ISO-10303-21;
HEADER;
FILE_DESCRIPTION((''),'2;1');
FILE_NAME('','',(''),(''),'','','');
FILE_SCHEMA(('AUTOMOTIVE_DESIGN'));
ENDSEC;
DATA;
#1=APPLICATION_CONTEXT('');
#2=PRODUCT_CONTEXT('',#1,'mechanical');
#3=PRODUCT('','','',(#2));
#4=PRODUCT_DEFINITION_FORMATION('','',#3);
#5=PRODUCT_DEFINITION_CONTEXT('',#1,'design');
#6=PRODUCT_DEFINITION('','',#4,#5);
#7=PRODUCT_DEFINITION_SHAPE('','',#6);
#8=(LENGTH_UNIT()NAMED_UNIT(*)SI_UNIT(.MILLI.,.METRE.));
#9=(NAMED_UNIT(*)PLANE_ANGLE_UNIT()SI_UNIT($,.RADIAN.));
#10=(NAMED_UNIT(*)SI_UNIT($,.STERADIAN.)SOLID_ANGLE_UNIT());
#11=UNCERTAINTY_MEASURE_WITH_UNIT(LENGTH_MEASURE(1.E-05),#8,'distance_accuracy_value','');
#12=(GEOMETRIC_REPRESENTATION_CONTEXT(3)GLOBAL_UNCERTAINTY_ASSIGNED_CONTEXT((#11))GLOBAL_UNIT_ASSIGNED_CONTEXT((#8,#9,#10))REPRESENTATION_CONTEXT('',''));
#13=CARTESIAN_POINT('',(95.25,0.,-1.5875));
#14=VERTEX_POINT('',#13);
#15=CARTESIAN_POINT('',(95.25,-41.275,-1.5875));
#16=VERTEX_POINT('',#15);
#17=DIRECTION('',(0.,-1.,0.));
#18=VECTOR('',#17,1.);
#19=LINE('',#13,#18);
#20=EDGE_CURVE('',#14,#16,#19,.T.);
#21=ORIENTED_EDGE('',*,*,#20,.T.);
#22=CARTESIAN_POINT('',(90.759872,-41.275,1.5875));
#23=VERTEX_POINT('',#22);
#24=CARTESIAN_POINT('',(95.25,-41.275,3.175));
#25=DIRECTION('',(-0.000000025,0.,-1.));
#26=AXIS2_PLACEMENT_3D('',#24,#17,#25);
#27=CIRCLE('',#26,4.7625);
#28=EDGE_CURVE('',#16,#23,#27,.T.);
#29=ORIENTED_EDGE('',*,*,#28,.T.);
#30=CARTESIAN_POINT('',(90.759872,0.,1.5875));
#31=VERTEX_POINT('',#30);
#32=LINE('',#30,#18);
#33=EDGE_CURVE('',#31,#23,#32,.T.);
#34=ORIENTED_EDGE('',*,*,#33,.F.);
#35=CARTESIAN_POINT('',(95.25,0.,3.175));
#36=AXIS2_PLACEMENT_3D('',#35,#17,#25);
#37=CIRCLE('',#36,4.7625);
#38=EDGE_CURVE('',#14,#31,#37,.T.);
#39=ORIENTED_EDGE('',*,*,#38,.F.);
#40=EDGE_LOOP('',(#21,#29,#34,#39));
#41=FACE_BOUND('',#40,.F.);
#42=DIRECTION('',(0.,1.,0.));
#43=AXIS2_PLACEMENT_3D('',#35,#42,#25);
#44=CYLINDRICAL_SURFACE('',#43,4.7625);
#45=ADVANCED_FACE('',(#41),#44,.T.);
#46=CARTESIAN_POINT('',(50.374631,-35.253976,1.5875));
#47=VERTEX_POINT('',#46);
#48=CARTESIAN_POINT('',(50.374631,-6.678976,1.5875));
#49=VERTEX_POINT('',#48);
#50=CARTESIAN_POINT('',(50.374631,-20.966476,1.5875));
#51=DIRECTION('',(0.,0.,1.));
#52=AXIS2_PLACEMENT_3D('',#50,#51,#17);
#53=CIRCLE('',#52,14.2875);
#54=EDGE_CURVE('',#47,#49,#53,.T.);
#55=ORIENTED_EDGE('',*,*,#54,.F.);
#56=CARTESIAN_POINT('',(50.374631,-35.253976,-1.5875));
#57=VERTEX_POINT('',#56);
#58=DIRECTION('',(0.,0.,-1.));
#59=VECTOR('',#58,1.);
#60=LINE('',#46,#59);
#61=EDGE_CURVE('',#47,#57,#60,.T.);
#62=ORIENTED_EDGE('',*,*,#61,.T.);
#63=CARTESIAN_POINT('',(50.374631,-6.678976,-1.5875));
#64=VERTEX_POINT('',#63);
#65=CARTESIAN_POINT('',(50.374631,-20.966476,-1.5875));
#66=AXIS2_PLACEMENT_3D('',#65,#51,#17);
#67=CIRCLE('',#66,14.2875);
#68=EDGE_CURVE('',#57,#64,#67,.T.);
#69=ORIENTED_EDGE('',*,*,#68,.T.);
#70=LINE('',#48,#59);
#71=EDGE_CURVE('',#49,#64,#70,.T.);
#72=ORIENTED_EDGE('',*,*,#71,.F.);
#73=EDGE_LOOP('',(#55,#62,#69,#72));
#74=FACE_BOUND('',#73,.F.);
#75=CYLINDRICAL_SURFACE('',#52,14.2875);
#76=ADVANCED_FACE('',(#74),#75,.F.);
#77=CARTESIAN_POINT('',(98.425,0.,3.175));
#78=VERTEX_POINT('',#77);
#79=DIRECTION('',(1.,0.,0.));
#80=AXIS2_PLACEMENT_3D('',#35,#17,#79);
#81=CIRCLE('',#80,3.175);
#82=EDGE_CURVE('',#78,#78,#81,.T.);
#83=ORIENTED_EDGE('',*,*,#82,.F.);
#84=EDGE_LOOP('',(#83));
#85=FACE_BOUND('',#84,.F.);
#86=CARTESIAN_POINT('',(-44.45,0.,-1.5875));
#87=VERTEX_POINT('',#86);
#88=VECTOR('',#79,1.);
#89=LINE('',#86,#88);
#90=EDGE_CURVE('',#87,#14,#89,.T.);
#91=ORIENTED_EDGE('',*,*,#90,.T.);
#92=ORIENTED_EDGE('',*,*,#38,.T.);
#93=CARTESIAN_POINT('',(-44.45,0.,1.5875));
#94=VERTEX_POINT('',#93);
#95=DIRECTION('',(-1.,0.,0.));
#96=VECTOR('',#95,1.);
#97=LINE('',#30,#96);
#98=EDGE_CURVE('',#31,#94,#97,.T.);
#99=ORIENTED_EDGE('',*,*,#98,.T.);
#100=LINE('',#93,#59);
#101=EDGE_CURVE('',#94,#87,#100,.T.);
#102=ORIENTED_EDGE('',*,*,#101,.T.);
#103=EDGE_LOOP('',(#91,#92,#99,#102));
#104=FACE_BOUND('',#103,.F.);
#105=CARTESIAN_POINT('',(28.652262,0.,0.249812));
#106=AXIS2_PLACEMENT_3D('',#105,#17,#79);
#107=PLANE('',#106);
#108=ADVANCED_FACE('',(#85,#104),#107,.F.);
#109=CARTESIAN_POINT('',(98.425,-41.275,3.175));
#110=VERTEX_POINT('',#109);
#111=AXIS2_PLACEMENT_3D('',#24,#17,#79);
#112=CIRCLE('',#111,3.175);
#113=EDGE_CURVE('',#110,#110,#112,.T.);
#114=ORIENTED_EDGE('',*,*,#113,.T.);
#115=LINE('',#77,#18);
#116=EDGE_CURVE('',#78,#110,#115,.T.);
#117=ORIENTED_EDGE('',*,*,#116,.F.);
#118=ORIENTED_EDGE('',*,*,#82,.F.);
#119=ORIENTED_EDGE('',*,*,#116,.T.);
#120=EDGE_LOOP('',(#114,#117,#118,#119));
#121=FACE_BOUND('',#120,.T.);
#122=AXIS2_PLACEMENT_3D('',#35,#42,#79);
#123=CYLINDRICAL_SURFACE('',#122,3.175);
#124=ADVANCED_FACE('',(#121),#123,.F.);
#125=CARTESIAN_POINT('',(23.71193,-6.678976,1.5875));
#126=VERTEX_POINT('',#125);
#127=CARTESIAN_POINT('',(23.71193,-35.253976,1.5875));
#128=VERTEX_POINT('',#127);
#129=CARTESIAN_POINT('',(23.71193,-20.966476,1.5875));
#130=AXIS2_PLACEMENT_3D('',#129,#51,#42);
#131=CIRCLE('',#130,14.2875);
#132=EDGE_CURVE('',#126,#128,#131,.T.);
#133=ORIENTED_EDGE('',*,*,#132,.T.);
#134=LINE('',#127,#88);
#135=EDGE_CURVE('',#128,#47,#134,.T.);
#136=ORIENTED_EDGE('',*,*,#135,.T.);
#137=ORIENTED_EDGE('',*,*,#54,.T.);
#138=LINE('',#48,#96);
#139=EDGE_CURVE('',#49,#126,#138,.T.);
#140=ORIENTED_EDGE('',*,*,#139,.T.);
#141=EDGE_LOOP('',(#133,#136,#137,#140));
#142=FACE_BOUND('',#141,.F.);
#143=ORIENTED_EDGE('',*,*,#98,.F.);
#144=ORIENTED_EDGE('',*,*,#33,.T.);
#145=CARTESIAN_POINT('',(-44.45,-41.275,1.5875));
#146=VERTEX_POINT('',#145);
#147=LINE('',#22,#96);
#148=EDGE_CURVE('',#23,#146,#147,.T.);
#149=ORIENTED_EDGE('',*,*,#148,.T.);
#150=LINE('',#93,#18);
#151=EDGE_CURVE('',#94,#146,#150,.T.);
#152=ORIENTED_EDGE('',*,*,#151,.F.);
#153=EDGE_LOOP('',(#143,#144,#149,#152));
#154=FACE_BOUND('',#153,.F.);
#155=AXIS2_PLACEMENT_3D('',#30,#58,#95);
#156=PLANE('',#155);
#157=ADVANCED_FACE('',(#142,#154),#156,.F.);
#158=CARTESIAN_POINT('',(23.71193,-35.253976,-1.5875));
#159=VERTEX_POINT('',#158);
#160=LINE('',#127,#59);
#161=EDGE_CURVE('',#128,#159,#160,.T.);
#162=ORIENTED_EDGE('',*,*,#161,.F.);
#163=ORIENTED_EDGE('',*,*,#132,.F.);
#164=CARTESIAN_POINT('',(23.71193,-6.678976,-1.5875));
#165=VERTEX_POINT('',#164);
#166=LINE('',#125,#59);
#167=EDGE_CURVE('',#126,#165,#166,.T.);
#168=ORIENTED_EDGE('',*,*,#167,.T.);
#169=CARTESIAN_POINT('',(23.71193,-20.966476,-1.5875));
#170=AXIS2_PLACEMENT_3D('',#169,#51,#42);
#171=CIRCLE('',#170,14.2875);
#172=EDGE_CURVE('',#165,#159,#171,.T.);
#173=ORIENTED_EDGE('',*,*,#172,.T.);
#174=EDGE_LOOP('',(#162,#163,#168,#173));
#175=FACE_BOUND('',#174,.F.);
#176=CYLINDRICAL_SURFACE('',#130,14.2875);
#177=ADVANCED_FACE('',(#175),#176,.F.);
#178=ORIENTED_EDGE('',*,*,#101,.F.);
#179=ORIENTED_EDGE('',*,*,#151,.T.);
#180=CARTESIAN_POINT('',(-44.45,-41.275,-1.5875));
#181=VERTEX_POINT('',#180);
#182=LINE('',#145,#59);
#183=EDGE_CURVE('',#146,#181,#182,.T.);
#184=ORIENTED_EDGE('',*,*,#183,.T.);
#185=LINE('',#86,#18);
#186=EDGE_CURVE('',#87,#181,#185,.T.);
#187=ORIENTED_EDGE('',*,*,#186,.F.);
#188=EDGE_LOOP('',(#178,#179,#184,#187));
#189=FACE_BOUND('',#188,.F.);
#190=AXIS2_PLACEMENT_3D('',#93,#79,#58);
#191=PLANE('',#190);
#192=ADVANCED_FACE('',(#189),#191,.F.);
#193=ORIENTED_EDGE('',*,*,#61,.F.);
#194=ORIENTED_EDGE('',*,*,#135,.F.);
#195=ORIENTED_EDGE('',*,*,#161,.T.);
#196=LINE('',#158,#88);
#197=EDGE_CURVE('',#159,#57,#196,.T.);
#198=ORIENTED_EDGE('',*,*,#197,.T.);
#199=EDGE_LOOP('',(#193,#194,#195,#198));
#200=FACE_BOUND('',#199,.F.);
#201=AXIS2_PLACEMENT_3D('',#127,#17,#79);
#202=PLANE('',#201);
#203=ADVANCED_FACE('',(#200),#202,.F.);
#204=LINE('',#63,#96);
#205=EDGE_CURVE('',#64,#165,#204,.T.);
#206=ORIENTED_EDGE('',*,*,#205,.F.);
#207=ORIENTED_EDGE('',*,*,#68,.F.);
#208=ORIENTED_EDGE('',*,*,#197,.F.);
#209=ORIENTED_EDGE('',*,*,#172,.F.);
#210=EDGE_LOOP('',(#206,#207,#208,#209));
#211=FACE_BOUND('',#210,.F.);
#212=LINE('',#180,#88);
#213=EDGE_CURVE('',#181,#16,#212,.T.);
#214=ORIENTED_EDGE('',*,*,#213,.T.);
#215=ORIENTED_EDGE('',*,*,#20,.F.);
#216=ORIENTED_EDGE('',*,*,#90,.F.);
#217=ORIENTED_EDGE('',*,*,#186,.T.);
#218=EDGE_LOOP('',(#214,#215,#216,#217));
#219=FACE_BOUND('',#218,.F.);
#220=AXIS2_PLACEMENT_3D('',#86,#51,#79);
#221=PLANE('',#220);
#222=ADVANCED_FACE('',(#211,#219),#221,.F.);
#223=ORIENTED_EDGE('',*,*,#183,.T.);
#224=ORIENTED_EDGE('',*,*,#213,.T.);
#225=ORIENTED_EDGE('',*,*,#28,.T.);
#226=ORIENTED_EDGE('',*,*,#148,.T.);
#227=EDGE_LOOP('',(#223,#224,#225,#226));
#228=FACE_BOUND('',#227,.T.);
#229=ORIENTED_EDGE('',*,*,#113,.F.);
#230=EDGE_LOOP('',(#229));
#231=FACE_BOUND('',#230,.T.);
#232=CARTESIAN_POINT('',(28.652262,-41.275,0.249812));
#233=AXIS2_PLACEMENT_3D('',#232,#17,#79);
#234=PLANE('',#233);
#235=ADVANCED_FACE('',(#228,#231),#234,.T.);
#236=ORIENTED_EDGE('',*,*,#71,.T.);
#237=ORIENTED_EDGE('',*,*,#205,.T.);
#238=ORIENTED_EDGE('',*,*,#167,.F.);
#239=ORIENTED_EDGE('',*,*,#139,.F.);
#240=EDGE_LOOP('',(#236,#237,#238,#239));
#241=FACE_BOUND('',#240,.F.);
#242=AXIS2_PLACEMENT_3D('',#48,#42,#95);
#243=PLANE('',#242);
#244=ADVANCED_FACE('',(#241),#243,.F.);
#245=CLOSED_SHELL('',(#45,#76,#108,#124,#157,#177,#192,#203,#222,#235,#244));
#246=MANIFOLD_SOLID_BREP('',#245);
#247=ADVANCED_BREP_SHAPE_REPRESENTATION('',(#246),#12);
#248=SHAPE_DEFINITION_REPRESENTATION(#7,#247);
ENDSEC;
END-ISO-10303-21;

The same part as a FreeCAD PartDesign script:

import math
import FreeCAD as App
import Part
import Sketcher
from FreeCAD import Vector
Q = App.Units.Quantity

doc = App.newDocument("Part")
body = doc.addObject("PartDesign::Body", "Body")

# Sketch on XZ plane
sketch1 = body.newObject("Sketcher::SketchObject", "Sketch")
sketch1.AttachmentSupport = (doc.getObject("XZ_Plane"), [""])
sketch1.MapMode = "FlatFace"
sketch1.addGeometry([
    Part.LineSegment(Vector(-44.5, -1.6, 0), Vector(95.2, -1.6, 0)),  # 0
    Part.ArcOfCircle(Part.Circle(Vector(95.3, 3.2, 0), Vector(0, 0, 1), 4.8), math.radians(-90), math.radians(199)),  # 1
    Part.LineSegment(Vector(90.8, 1.6, 0), Vector(-44.5, 1.6, 0)),  # 2
    Part.LineSegment(Vector(-44.5, 1.6, 0), Vector(-44.5, -1.6, 0)),  # 3
    Part.Circle(Vector(95.2, 3.2, 0), Vector(0, 0, 1), 3.2),  # 4
], False)
sketch1.addConstraint([
    Sketcher.Constraint("Tangent", 0, 2, 1, 1),
    Sketcher.Constraint("Coincident", 1, 2, 2, 1),
    Sketcher.Constraint("Coincident", 2, 2, 3, 1),
    Sketcher.Constraint("Coincident", 3, 2, 0, 1),
    Sketcher.Constraint("Horizontal", 0),
    Sketcher.Constraint("Horizontal", 2),
    Sketcher.Constraint("Vertical", 3),
    Sketcher.Constraint("Coincident", 4, 3, 1, 3),
    Sketcher.Constraint("Diameter", 4, Q("0.25 in")),
    Sketcher.Constraint("DistanceX", 0, 1, 0, 2, Q("5.5 in")),
    Sketcher.Constraint("Radius", 1, Q("0.1875 in")),
    Sketcher.Constraint("DistanceY", 3, 2, 3, 1, Q("0.125 in")),
    Sketcher.Constraint("DistanceX", -1, 1, 1, 3, Q("3.75 in")),
    Sketcher.Constraint("DistanceY", -1, 1, 1, 3, Q("0.125 in")),
])
pad1 = body.newObject("PartDesign::Pad", "Pad")
pad1.Profile = sketch1
pad1.Length = Q("1.625 in")

# Sketch on XY plane
sketch2 = body.newObject("Sketcher::SketchObject", "Sketch001")
sketch2.AttachmentSupport = (doc.getObject("XY_Plane"), [""])
sketch2.MapMode = "FlatFace"
sketch2.AttachmentOffset = App.Placement(Vector(0, 0, 0.0625 * 25.4), App.Rotation())
sketch2.addGeometry([
    Part.LineSegment(Vector(24, -35, 0), Vector(50, -35, 0)),
    Part.ArcOfCircle(Part.Circle(Vector(50, -21, 0), Vector(0, 0, 1), 14), math.radians(-90), math.radians(90)),
    Part.LineSegment(Vector(50, -7, 0), Vector(24, -7, 0)),
    Part.ArcOfCircle(Part.Circle(Vector(24, -21, 0), Vector(0, 0, 1), 14), math.radians(90), math.radians(270)),
], False)
sketch2.addConstraint([
    Sketcher.Constraint("Tangent", 0, 2, 1, 1),
    Sketcher.Constraint("Tangent", 1, 2, 2, 1),
    Sketcher.Constraint("Tangent", 2, 2, 3, 1),
    Sketcher.Constraint("Tangent", 3, 2, 0, 1),
    Sketcher.Constraint("Horizontal", 0),
    Sketcher.Constraint("Horizontal", 2),
    Sketcher.Constraint("Radius", 1, Q("0.5625 in")),
    Sketcher.Constraint("DistanceX", 0, 1, 0, 2, 26.662701),
    Sketcher.Constraint("DistanceX", -1, 1, 1, 3, 50.374631),
    Sketcher.Constraint("DistanceY", 1, 3, -1, 1, 20.966476),
])
pocket1 = body.newObject("PartDesign::Pocket", "Pocket")
pocket1.Profile = sketch2
pocket1.Type = "ThroughAll"

doc.recompute()
